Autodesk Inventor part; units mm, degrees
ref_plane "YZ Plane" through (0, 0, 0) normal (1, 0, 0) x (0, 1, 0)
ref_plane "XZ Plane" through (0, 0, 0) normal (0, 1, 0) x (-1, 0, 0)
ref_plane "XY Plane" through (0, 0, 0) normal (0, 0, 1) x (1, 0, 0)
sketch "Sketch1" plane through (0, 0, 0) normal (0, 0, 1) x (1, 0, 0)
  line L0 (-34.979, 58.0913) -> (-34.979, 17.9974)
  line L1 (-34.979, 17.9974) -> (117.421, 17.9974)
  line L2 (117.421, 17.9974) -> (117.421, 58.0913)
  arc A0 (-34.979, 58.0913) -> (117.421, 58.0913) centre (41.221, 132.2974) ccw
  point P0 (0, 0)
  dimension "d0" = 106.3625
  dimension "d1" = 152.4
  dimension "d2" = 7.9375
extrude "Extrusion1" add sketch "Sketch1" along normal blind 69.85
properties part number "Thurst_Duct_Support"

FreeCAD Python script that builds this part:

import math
import FreeCAD as App
import Part
import Sketcher
from FreeCAD import Vector
Q = App.Units.Quantity

doc = App.newDocument("Part")
body = doc.addObject("PartDesign::Body", "Body")

sketch1 = body.newObject("Sketcher::SketchObject", "Sketch")
sketch1.AttachmentSupport = (doc.getObject("XY_Plane"), [""])
sketch1.MapMode = "FlatFace"
sketch1.addGeometry([
    Part.ArcOfCircle(Part.Circle(Vector(41, 132, 0), Vector(0, 0, 1), 106), math.radians(-136), math.radians(-44)),
    Part.LineSegment(Vector(-35, 58, 0), Vector(-35, 18, 0)),
    Part.LineSegment(Vector(-35, 18, 0), Vector(117, 18, 0)),
    Part.LineSegment(Vector(117, 18, 0), Vector(117, 58, 0)),
], False)
sketch1.addConstraint([
    Sketcher.Constraint("Coincident", 0, 1, 1, 1),
    Sketcher.Constraint("Coincident", 1, 2, 2, 1),
    Sketcher.Constraint("Coincident", 2, 2, 3, 1),
    Sketcher.Constraint("Coincident", 3, 2, 0, 2),
    Sketcher.Constraint("Vertical", 1),
    Sketcher.Constraint("Horizontal", 2),
    Sketcher.Constraint("Vertical", 3),
    Sketcher.Constraint("Horizontal", 0, 1, 3, 2),
    Sketcher.Constraint("DistanceX", 2, 1, 2, 2, Q("6 in")),
    Sketcher.Constraint("Radius", 0, Q("4.1875 in")),
    Sketcher.Constraint("DistanceY", 1, 2, 0, 3, Q("4.5 in")),
    Sketcher.Constraint("DistanceX", -1, 1, 0, 3, 41.221),
    Sketcher.Constraint("DistanceY", -1, 1, 0, 3, 132.2974),
])
pad1 = body.newObject("PartDesign::Pad", "Pad")
pad1.Profile = sketch1
pad1.Length = Q("2.75 in")

doc.recompute()
